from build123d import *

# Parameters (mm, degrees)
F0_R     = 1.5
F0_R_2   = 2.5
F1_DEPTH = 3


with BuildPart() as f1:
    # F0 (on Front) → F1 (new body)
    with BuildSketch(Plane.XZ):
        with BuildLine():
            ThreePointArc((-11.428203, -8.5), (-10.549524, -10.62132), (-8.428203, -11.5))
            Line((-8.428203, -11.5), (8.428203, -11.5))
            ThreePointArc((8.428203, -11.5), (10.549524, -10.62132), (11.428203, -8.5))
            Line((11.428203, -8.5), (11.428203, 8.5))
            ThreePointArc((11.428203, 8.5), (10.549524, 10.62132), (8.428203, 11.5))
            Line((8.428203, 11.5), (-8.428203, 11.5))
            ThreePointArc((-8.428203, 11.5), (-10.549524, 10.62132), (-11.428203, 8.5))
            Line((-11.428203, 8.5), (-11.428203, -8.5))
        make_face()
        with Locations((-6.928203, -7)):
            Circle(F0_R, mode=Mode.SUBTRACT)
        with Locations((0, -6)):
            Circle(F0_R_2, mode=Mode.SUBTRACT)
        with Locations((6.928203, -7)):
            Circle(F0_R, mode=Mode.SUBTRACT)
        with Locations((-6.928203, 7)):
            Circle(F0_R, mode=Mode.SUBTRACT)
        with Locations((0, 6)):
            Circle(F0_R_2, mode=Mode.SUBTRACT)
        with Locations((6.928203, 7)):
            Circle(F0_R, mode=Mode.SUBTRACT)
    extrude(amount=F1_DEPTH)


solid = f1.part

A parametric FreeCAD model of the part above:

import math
import FreeCAD as App
import Part
import Sketcher
from FreeCAD import Vector
Q = App.Units.Quantity

doc = App.newDocument("Part")
body = doc.addObject("PartDesign::Body", "Body")

# Sketch on XZ plane
sketch1 = body.newObject("Sketcher::SketchObject", "Sketch")
sketch1.AttachmentSupport = (doc.getObject("XZ_Plane"), [""])
sketch1.MapMode = "FlatFace"
sketch1.addGeometry([
    Part.ArcOfCircle(Part.Circle(Vector(-8.428204, -8.500001, 0), Vector(0, 0, 1), 2.999999), math.radians(179.99999), math.radians(270.00001)),  # 0
    Part.LineSegment(Vector(-8.428203, -11.5, 0), Vector(8.428203, -11.5, 0)),  # 1
    Part.ArcOfCircle(Part.Circle(Vector(8.428204, -8.500001, 0), Vector(0, 0, 1), 2.999999), math.radians(-90.00001), math.radians(0.00001)),  # 2
    Part.LineSegment(Vector(11.428203, -8.5, 0), Vector(11.428203, 8.5, 0)),  # 3
    Part.ArcOfCircle(Part.Circle(Vector(8.428204, 8.500001, 0), Vector(0, 0, 1), 2.999999), math.radians(-0.00001), math.radians(90.00001)),  # 4
    Part.LineSegment(Vector(8.428203, 11.5, 0), Vector(-8.428203, 11.5, 0)),  # 5
    Part.ArcOfCircle(Part.Circle(Vector(-8.428204, 8.500001, 0), Vector(0, 0, 1), 2.999999), math.radians(89.99999), math.radians(180.00001)),  # 6
    Part.LineSegment(Vector(-11.428203, 8.5, 0), Vector(-11.428203, -8.5, 0)),  # 7
    Part.Circle(Vector(-6.928203, -7, 0), Vector(0, 0, 1), 1.5),  # 8
    Part.Circle(Vector(0, -6, 0), Vector(0, 0, 1), 2.5),  # 9
    Part.Circle(Vector(6.928203, -7, 0), Vector(0, 0, 1), 1.5),  # 10
    Part.Circle(Vector(-6.928203, 7, 0), Vector(0, 0, 1), 1.5),  # 11
    Part.Circle(Vector(0, 6, 0), Vector(0, 0, 1), 2.5),  # 12
    Part.Circle(Vector(6.928203, 7, 0), Vector(0, 0, 1), 1.5),  # 13
], False)
sketch1.addConstraint([
    Sketcher.Constraint("Tangent", 0, 2, 1, 1),
    Sketcher.Constraint("Tangent", 1, 2, 2, 1),
    Sketcher.Constraint("Tangent", 2, 2, 3, 1),
    Sketcher.Constraint("Tangent", 3, 2, 4, 1),
    Sketcher.Constraint("Tangent", 4, 2, 5, 1),
    Sketcher.Constraint("Tangent", 5, 2, 6, 1),
    Sketcher.Constraint("Tangent", 6, 2, 7, 1),
    Sketcher.Constraint("Tangent", 7, 2, 0, 1),
    Sketcher.Constraint("Horizontal", 1),
    Sketcher.Constraint("Vertical", 3),
    Sketcher.Constraint("Horizontal", 5),
    Sketcher.Constraint("Vertical", 7),
    Sketcher.Constraint("Equal", 0, 2),
    Sketcher.Constraint("Equal", 2, 4),
    Sketcher.Constraint("Equal", 4, 6),
    Sketcher.Constraint("Equal", 8, 10),
    Sketcher.Constraint("Equal", 10, 11),
    Sketcher.Constraint("Equal", 9, 12),
    Sketcher.Constraint("Equal", 11, 13),
    Sketcher.Constraint("Symmetric", 0, 3, 4, 3, -1, 1),
    Sketcher.Constraint("Symmetric", 10, 3, 11, 3, -1, 1),
    Sketcher.Constraint("Symmetric", 9, 3, 12, 3, -1, 1),
    Sketcher.Constraint("Symmetric", 8, 3, 13, 3, -1, 1),
    Sketcher.Constraint("Symmetric", 8, 3, 10, 3, -2),
    Sketcher.Constraint("PointOnObject", 9, 3, -2),
    Sketcher.Constraint("Diameter", 8, Q("3 mm")),
    Sketcher.Constraint("Diameter", 9, Q("5 mm")),
    Sketcher.Constraint("Radius", 0, Q("2.999999 mm")),
    Sketcher.Constraint("DistanceY", 3, 1, 3, 2, Q("17 mm")),
    Sketcher.Constraint("DistanceY", 8, 3, -1, 1, Q("7 mm")),
    Sketcher.Constraint("DistanceY", 9, 3, -1, 1, Q("6 mm")),
    Sketcher.Constraint("DistanceX", 0, 3, 8, 3, Q("1.500001 mm")),
    Sketcher.Constraint("DistanceX", 1, 1, 1, 2, Q("16.856406 mm")),
])
pad1 = body.newObject("PartDesign::Pad", "Pad")
pad1.Profile = sketch1
pad1.Length = 3

doc.recompute()
